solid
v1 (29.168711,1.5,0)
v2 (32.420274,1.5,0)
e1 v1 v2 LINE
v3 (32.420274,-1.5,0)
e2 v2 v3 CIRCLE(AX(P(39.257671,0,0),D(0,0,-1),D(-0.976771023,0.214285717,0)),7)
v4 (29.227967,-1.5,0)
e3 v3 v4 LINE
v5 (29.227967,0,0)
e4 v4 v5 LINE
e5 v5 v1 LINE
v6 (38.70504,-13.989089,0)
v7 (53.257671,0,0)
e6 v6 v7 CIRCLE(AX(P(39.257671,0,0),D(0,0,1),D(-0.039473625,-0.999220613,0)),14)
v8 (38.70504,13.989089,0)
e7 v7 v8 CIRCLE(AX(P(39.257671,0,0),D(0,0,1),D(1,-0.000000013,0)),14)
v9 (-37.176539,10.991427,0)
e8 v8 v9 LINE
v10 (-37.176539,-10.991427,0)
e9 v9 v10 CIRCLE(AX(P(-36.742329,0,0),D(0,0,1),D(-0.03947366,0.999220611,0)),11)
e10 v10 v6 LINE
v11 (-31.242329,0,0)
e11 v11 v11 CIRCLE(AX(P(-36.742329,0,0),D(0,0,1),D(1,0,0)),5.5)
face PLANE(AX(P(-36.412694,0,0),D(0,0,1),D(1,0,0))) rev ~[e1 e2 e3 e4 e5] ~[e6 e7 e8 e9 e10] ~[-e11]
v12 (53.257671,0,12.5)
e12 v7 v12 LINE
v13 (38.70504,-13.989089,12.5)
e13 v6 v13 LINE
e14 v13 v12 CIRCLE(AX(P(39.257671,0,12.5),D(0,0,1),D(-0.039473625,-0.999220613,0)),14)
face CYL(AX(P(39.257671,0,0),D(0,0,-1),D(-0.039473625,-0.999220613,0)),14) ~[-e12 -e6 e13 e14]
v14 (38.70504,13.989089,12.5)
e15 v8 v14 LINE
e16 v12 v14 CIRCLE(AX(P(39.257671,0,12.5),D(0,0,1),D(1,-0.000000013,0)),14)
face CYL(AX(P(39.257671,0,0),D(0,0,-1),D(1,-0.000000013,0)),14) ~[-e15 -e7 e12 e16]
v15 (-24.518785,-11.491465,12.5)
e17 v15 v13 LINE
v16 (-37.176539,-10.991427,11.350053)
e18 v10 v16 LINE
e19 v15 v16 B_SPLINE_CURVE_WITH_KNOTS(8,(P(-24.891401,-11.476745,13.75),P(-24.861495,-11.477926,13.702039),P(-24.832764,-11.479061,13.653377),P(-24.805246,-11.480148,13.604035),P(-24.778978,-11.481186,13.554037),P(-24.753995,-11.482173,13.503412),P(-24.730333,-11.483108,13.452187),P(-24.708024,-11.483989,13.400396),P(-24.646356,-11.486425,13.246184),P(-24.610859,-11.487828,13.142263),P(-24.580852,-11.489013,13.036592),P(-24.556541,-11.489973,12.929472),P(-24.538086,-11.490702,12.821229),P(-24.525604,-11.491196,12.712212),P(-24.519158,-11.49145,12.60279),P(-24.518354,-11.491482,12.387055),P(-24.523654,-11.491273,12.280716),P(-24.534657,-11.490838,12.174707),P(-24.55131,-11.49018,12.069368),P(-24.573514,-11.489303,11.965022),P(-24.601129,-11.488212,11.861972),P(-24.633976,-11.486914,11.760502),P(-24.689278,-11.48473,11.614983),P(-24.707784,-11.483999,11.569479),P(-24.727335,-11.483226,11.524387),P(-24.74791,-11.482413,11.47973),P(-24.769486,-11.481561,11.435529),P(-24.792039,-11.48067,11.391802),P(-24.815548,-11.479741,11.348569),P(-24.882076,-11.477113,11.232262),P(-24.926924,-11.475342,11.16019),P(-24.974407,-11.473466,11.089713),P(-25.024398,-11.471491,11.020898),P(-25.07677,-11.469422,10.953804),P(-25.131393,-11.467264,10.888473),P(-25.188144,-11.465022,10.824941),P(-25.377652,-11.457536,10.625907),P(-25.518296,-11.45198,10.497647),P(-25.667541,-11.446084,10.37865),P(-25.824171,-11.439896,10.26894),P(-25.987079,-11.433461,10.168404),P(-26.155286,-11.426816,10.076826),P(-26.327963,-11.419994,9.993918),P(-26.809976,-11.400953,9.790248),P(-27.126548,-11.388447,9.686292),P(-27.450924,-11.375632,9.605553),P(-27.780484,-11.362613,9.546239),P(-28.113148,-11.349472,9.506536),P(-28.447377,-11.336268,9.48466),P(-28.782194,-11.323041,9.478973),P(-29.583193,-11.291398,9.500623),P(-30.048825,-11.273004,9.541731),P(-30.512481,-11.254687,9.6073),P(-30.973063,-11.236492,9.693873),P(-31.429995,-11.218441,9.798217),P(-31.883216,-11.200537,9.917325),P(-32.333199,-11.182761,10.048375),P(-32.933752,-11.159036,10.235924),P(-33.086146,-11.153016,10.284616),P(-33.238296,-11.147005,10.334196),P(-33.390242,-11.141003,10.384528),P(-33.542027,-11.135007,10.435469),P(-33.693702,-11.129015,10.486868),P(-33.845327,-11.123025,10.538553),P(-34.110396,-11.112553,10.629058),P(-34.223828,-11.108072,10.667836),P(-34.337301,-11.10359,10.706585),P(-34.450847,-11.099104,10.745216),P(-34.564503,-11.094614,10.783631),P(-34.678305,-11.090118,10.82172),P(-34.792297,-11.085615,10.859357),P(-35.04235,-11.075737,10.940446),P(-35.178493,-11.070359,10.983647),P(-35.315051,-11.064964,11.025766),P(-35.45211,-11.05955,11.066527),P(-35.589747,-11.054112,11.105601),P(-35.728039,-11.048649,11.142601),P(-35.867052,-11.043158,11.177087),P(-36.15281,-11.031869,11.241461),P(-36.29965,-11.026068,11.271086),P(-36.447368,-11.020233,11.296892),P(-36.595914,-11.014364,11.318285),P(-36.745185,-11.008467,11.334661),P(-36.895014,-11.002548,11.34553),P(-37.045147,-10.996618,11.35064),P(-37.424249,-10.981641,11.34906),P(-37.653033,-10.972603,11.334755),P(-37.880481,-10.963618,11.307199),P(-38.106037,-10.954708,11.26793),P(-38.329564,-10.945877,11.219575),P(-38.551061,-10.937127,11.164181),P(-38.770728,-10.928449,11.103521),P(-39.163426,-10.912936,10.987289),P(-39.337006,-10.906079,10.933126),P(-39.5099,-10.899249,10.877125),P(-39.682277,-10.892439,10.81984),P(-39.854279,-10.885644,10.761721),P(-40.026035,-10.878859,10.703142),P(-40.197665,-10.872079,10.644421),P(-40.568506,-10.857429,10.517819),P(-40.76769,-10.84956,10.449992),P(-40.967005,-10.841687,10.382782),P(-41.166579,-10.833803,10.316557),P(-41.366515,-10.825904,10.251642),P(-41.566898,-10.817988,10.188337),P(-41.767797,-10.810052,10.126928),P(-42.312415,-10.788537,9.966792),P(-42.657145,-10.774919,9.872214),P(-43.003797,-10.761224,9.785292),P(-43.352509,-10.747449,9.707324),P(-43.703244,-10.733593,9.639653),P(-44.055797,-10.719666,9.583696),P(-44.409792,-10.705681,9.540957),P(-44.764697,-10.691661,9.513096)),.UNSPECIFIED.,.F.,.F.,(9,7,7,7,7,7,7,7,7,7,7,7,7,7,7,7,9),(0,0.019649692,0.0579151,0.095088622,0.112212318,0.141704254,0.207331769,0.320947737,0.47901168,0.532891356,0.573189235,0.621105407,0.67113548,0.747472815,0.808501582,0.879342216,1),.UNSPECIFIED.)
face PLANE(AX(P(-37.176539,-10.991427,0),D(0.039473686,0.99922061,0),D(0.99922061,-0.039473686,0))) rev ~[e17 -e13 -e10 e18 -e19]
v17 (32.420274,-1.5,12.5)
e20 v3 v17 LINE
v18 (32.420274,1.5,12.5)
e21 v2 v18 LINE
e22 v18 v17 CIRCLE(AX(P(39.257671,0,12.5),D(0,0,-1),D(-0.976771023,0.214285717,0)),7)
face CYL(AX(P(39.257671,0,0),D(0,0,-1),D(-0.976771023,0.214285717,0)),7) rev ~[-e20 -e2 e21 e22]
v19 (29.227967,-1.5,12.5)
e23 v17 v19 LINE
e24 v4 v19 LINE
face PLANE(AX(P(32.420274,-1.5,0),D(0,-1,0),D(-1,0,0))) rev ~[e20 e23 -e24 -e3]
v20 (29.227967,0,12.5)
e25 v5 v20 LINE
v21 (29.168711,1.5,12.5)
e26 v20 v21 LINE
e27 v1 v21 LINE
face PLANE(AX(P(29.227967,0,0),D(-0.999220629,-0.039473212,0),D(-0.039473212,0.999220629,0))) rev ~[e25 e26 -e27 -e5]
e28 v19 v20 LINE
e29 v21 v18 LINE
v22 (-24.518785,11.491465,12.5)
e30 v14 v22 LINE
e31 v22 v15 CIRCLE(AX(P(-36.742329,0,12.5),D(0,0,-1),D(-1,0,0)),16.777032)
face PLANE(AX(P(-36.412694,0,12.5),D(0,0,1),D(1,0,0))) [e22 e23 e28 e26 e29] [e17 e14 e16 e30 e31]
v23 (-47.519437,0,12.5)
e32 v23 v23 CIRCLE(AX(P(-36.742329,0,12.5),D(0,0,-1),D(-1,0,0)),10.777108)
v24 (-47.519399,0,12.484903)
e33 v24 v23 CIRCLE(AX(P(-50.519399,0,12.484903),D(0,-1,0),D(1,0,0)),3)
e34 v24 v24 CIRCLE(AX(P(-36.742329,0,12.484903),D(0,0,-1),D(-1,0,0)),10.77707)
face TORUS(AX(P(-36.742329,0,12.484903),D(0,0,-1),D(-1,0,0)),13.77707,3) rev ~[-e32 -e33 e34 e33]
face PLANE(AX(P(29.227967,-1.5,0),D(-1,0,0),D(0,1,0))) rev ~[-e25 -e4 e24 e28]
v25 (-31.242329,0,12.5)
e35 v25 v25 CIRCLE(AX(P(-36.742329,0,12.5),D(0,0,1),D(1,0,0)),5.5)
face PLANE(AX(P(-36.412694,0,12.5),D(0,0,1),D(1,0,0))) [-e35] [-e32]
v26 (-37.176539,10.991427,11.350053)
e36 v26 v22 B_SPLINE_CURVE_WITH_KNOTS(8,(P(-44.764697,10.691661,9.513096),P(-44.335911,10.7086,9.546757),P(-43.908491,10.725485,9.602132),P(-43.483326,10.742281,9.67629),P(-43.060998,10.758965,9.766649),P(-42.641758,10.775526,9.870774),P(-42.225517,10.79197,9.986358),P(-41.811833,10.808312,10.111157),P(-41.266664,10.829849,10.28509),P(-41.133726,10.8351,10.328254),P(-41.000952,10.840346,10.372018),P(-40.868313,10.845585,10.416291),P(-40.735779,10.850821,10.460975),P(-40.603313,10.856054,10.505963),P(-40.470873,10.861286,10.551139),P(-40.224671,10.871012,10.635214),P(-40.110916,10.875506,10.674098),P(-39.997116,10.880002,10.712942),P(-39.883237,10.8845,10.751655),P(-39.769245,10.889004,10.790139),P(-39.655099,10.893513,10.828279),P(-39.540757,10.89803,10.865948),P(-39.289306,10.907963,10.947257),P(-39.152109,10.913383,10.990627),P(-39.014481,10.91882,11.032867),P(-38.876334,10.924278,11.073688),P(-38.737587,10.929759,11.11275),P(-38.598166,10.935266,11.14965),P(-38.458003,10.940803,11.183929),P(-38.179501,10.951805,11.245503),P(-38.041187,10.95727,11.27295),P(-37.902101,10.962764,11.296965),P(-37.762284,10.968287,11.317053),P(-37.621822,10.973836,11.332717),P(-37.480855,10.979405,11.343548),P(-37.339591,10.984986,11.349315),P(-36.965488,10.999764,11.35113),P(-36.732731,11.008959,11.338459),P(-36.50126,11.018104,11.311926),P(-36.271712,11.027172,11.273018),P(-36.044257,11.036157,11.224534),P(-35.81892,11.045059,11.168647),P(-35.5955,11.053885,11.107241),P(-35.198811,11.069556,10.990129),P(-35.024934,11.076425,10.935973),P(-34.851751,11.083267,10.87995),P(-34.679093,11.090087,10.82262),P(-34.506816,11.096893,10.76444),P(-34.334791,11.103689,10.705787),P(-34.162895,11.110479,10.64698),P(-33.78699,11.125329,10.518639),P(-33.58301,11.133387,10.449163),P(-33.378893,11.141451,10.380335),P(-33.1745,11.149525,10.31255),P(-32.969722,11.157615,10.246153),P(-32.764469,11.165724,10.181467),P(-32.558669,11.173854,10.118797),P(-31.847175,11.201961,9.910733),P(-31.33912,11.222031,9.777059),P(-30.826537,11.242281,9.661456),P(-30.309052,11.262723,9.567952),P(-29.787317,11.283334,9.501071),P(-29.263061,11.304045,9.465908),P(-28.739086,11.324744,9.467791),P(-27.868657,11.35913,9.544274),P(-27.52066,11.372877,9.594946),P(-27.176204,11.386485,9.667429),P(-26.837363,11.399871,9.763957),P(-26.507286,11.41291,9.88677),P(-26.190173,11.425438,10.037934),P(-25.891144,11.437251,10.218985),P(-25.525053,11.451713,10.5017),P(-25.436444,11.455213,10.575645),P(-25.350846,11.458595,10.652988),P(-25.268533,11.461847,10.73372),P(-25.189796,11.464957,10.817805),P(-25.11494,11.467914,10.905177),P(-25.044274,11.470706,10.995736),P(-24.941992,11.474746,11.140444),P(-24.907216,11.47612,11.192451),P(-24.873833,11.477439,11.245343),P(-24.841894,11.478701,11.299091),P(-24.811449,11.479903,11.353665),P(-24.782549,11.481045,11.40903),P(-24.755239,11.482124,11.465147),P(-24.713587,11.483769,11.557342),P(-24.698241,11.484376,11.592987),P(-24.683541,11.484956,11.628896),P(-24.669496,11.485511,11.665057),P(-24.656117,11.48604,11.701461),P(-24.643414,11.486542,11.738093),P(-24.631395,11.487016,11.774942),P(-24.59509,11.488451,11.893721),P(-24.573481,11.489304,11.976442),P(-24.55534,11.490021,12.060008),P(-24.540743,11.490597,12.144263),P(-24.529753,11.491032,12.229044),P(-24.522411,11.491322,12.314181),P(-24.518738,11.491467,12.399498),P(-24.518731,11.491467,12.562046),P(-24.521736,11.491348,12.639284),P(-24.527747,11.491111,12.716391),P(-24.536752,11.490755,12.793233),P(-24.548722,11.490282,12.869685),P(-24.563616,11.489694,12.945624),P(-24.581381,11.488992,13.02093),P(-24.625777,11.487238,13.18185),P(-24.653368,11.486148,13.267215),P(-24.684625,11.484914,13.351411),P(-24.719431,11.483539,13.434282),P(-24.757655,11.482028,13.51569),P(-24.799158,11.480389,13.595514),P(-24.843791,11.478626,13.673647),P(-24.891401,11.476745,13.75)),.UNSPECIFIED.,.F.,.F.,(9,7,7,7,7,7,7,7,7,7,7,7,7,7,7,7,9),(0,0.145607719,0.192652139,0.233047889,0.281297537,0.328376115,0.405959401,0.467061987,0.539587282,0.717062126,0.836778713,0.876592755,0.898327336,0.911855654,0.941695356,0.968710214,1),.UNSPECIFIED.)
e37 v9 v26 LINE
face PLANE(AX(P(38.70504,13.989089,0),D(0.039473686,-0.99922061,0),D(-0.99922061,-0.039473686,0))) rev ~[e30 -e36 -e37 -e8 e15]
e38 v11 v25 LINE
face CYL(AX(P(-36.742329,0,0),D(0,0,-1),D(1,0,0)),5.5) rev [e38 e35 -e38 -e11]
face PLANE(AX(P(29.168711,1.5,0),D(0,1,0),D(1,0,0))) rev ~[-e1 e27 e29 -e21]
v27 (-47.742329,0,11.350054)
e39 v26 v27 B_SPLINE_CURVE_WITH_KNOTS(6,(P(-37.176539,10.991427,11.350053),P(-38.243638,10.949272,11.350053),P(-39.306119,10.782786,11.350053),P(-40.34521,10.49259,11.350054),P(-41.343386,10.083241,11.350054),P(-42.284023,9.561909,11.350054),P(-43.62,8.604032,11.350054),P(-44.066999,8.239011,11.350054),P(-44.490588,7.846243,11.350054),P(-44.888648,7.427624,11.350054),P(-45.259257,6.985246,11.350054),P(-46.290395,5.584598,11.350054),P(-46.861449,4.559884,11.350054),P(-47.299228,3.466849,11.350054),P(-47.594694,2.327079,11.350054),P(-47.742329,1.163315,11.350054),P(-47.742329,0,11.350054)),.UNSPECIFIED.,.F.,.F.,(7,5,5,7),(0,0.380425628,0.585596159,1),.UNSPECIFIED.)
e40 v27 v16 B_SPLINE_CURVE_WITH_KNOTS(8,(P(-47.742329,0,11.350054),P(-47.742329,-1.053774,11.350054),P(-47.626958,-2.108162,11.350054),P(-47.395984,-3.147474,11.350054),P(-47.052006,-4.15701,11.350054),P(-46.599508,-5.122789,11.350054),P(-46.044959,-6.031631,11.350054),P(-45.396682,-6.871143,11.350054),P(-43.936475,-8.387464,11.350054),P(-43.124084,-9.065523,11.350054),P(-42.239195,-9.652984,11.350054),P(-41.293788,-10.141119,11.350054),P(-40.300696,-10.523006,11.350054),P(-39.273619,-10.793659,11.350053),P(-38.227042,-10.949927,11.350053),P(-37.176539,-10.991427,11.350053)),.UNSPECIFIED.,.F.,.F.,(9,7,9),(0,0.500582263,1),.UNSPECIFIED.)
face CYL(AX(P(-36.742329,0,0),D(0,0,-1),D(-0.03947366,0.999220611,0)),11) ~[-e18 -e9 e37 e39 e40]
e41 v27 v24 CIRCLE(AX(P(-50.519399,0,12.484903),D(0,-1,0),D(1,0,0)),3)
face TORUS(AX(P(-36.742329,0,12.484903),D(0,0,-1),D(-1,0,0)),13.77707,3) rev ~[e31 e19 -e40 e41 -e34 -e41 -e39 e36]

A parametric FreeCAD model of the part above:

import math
import FreeCAD as App
import Part
import Sketcher

V = App.Vector
Q = App.Units.Quantity

doc = App.newDocument("Part")
body = doc.addObject("PartDesign::Body", "Body")

sketch1 = doc.addObject("Sketcher::SketchObject", "Sketch")
body.addObject(sketch1)
sketch1.AttachmentSupport = (doc.XY_Plane, [""])
sketch1.MapMode = "FlatFace"
sketch1.addGeometry(Part.ArcOfCircle(Part.Circle(V(-36.7, 0, 0), V(0, 0, 1), 11), math.radians(92), math.radians(268)), False)
sketch1.addGeometry(Part.LineSegment(V(-37.2, -11, 0), V(38.7, -14, 0)), False)
sketch1.addGeometry(Part.ArcOfCircle(Part.Circle(V(39.3, 0, 0), V(0, 0, 1), 14), math.radians(-92), math.radians(0)), False)
sketch1.addGeometry(Part.ArcOfCircle(Part.Circle(V(39.3, 0, 0), V(0, 0, 1), 14), math.radians(0), math.radians(92)), False)
sketch1.addGeometry(Part.LineSegment(V(38.7, 14, 0), V(-37.2, 11, 0)), False)
sketch1.addGeometry(Part.Circle(V(-36.7, 0, 0), V(0, 0, 1), 5.5), False)
sketch1.addGeometry(Part.ArcOfCircle(Part.Circle(V(39.3, 0, 0), V(0, 0, 1), 7), math.radians(-168), math.radians(168)), False)
sketch1.addGeometry(Part.LineSegment(V(32.4, -1.5, 0), V(29.2, -1.5, 0)), False)
sketch1.addGeometry(Part.LineSegment(V(29.2, -1.5, 0), V(29.2, 0, 0)), False)
sketch1.addGeometry(Part.LineSegment(V(29.2, 0, 0), V(29.2, 1.5, 0)), False)
sketch1.addGeometry(Part.LineSegment(V(29.2, 1.5, 0), V(32.4, 1.5, 0)), False)
sketch1.addConstraint(Sketcher.Constraint("Tangent", 0, 2, 1, 1))
sketch1.addConstraint(Sketcher.Constraint("Tangent", 1, 2, 2, 1))
sketch1.addConstraint(Sketcher.Constraint("Tangent", 2, 2, 3, 1))
sketch1.addConstraint(Sketcher.Constraint("Tangent", 3, 2, 4, 1))
sketch1.addConstraint(Sketcher.Constraint("Tangent", 4, 2, 0, 1))
sketch1.addConstraint(Sketcher.Constraint("Coincident", 6, 1, 7, 1))
sketch1.addConstraint(Sketcher.Constraint("Coincident", 7, 2, 8, 1))
sketch1.addConstraint(Sketcher.Constraint("Coincident", 8, 2, 9, 1))
sketch1.addConstraint(Sketcher.Constraint("Coincident", 9, 2, 10, 1))
sketch1.addConstraint(Sketcher.Constraint("Coincident", 10, 2, 6, 2))
sketch1.addConstraint(Sketcher.Constraint("Horizontal", 7))
sketch1.addConstraint(Sketcher.Constraint("Vertical", 8))
sketch1.addConstraint(Sketcher.Constraint("Horizontal", 10))
sketch1.addConstraint(Sketcher.Constraint("Coincident", 5, 3, 0, 3))
sketch1.addConstraint(Sketcher.Constraint("Coincident", 6, 3, 2, 3))
sketch1.addConstraint(Sketcher.Constraint("Equal", 2, 3))
sketch1.addConstraint(Sketcher.Constraint("Symmetric", 1, 2, 3, 2, -1))
sketch1.addConstraint(Sketcher.Constraint("PointOnObject", 2, 2, -1))
sketch1.addConstraint(Sketcher.Constraint("PointOnObject", 8, 2, -1))
sketch1.addConstraint(Sketcher.Constraint("Perpendicular", 4, 9))
sketch1.addConstraint(Sketcher.Constraint("Vertical", 6, 1, 10, 2))
sketch1.addConstraint(Sketcher.Constraint("Diameter", 5, Q("11 mm")))
sketch1.addConstraint(Sketcher.Constraint("Radius", 0, Q("11 mm")))
sketch1.addConstraint(Sketcher.Constraint("Radius", 2, Q("14 mm")))
sketch1.addConstraint(Sketcher.Constraint("Radius", 6, Q("7 mm")))
sketch1.addConstraint(Sketcher.Constraint("DistanceY", 8, 1, 8, 2, Q("1.5 mm")))
sketch1.addConstraint(Sketcher.Constraint("DistanceX", 0, 3, 2, 3, Q("75.999999 mm")))
sketch1.addConstraint(Sketcher.Constraint("DistanceX", 7, 2, 7, 1, Q("3.192307 mm")))
sketch1.addConstraint(Sketcher.Constraint("DistanceX", 0, 3, -1, 1, Q("36.742329 mm")))
pad1 = doc.addObject("PartDesign::Pad", "Pad")
body.addObject(pad1)
pad1.Profile = sketch1
pad1.Length = 12.5

sketch2 = doc.addObject("Sketcher::SketchObject", "Sketch001")
body.addObject(sketch2)
sketch2.AttachmentSupport = (doc.XZ_Plane, [""])
sketch2.MapMode = "FlatFace"
sketch2.addGeometry(Part.Circle(V(-50.5, 12.5, 0), V(0, 0, 1), 3), False)
sketch2.addGeometry(Part.LineSegment(V(-36.7, 12.5, 0), V(-36.7, 2.5, 0)), True)
sketch2.addConstraint(Sketcher.Constraint("Vertical", 1))
sketch2.addConstraint(Sketcher.Constraint("Horizontal", 0, 3, 1, 1))
sketch2.addConstraint(Sketcher.Constraint("Diameter", 0, Q("6 mm")))
sketch2.addConstraint(Sketcher.Constraint("DistanceY", 1, 2, 1, 1, Q("10 mm")))
sketch2.addConstraint(Sketcher.Constraint("DistanceX", 0, 3, -1, 1, Q("50.519399 mm")))
sketch2.addConstraint(Sketcher.Constraint("DistanceX", 1, 1, -1, 1, Q("36.742329 mm")))
sketch2.addConstraint(Sketcher.Constraint("DistanceY", -1, 1, 0, 3, Q("12.484903 mm")))
groove = doc.addObject("PartDesign::Groove", "Groove")
body.addObject(groove)
groove.Profile = sketch2
groove.ReferenceAxis = (sketch2, ["Axis0"])
groove.Angle = 360

doc.recompute()
